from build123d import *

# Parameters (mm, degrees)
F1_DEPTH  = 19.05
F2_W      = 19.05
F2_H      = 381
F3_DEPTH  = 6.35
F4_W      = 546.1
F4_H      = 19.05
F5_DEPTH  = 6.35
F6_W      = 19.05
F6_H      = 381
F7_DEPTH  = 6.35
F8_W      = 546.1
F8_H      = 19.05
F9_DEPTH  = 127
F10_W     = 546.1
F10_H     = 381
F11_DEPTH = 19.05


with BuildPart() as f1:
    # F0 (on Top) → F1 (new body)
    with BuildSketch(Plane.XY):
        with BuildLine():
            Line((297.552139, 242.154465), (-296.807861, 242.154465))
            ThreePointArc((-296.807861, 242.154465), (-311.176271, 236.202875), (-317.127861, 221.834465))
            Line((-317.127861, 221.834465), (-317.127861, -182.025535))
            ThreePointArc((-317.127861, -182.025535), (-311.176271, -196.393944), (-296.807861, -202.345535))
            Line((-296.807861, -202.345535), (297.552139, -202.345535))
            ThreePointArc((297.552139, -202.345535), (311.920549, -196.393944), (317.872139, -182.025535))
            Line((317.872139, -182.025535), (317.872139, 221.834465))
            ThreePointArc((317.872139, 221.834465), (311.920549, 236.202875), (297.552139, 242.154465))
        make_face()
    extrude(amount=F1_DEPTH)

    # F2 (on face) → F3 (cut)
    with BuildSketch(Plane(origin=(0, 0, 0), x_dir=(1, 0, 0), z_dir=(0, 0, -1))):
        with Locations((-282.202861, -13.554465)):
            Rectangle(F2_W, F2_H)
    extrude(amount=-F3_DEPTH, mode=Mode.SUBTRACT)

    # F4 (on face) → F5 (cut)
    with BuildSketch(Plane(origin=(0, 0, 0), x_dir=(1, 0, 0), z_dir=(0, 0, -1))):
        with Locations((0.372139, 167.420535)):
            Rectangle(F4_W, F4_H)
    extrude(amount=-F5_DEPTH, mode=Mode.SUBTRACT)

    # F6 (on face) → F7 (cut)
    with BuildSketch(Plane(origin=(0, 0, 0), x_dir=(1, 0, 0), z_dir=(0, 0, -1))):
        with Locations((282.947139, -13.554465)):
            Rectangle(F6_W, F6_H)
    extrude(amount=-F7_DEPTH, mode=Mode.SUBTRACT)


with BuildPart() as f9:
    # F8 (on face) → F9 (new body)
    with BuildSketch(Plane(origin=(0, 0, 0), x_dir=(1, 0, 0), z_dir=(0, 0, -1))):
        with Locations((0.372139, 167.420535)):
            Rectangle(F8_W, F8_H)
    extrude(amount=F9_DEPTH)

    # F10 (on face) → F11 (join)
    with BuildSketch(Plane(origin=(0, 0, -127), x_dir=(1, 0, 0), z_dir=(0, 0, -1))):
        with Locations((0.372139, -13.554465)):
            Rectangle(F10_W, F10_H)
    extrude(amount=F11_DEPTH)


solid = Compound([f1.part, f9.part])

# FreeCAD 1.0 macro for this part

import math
import FreeCAD as App
import Part
import Sketcher
from FreeCAD import Vector
Q = App.Units.Quantity

doc = App.newDocument("Part")
params = doc.addObject("Spreadsheet::Sheet", "Params")
for row, (alias, value) in enumerate([
    ("sketch1_radius", "0.8 in"),
    ("sketch1_width", "23.4 in"),
    ("sketch1_height", "15.9 in"),
    ("pad1_length", "0.75 in"),
    ("sketch2_height", "15 in"),
    ("sketch2_width", "0.75 in"),
    ("pocket1_length", "0.25 in"),
    ("sketch3_width", "21.5 in"),
    ("sketch3_height", "0.75 in"),
    ("pocket2_length", "0.25 in"),
    ("sketch4_height", "15 in"),
    ("sketch4_width", "0.75 in"),
    ("pocket3_length", "0.25 in"),
    ("sketch5_width", "21.5 in"),
    ("sketch5_height", "0.75 in"),
    ("pad2_length", "5 in"),
    ("sketch6_height", "15 in"),
    ("sketch6_width", "21.5 in"),
    ("pad3_length", "0.75 in"),
], start=1):
    params.set(f"A{row}", alias)
    params.set(f"B{row}", "=" + value)
    params.setAlias(f"B{row}", alias)

body = doc.addObject("PartDesign::Body", "Body")

# Sketch on XY plane
sketch1 = body.newObject("Sketcher::SketchObject", "Sketch")
sketch1.AttachmentSupport = (doc.getObject("XY_Plane"), [""])
sketch1.MapMode = "FlatFace"
sketch1.addGeometry([
    Part.LineSegment(Vector(298, 242, 0), Vector(-297, 242, 0)),  # 0
    Part.ArcOfCircle(Part.Circle(Vector(-297, 222, 0), Vector(0, 0, 1), 20), math.radians(90), math.radians(180)),  # 1
    Part.LineSegment(Vector(-317, 222, 0), Vector(-317, -182, 0)),  # 2
    Part.ArcOfCircle(Part.Circle(Vector(-297, -182, 0), Vector(0, 0, 1), 20), math.radians(-180), math.radians(-90)),  # 3
    Part.LineSegment(Vector(-297, -202, 0), Vector(298, -202, 0)),  # 4
    Part.ArcOfCircle(Part.Circle(Vector(298, -182, 0), Vector(0, 0, 1), 20), math.radians(-90), math.radians(0)),  # 5
    Part.LineSegment(Vector(318, -182, 0), Vector(318, 222, 0)),  # 6
    Part.ArcOfCircle(Part.Circle(Vector(298, 222, 0), Vector(0, 0, 1), 20), math.radians(0), math.radians(90)),  # 7
], False)
sketch1.addConstraint([
    Sketcher.Constraint("Tangent", 0, 2, 1, 1),
    Sketcher.Constraint("Tangent", 1, 2, 2, 1),
    Sketcher.Constraint("Tangent", 2, 2, 3, 1),
    Sketcher.Constraint("Tangent", 3, 2, 4, 1),
    Sketcher.Constraint("Tangent", 4, 2, 5, 1),
    Sketcher.Constraint("Tangent", 5, 2, 6, 1),
    Sketcher.Constraint("Tangent", 6, 2, 7, 1),
    Sketcher.Constraint("Tangent", 7, 2, 0, 1),
    Sketcher.Constraint("Horizontal", 0),
    Sketcher.Constraint("Vertical", 2),
    Sketcher.Constraint("Horizontal", 4),
    Sketcher.Constraint("Vertical", 6),
    Sketcher.Constraint("Equal", 1, 3),
    Sketcher.Constraint("Equal", 3, 5),
    Sketcher.Constraint("Equal", 5, 7),
    Sketcher.Constraint("Radius", 1, Q("0.8 in")),
    Sketcher.Constraint("DistanceX", 0, 2, 0, 1, Q("23.4 in")),
    Sketcher.Constraint("DistanceY", 2, 2, 2, 1, Q("15.9 in")),
    Sketcher.Constraint("DistanceX", 1, 3, -1, 1, 296.807862),
    Sketcher.Constraint("DistanceY", -1, 1, 1, 3, 221.834466),
])
sketch1.setExpression("Constraints[15]", "Params.sketch1_radius")
sketch1.setExpression("Constraints[16]", "Params.sketch1_width")
sketch1.setExpression("Constraints[17]", "Params.sketch1_height")
pad1 = body.newObject("PartDesign::Pad", "Pad")
pad1.Profile = sketch1
pad1.setExpression("Length", "Params.pad1_length")

# Sketch on XY plane
sketch2 = body.newObject("Sketcher::SketchObject", "Sketch001")
sketch2.AttachmentSupport = (doc.getObject("XY_Plane"), [""])
sketch2.MapMode = "FlatFace"
sketch2.addGeometry([
    Part.LineSegment(Vector(-292, -177, 0), Vector(-292, 204, 0)),
    Part.LineSegment(Vector(-292, 204, 0), Vector(-273, 204, 0)),
    Part.LineSegment(Vector(-273, 204, 0), Vector(-273, -177, 0)),
    Part.LineSegment(Vector(-273, -177, 0), Vector(-292, -177, 0)),
], False)
sketch2.addConstraint([
    Sketcher.Constraint("Coincident", 0, 2, 1, 1),
    Sketcher.Constraint("Coincident", 1, 2, 2, 1),
    Sketcher.Constraint("Coincident", 2, 2, 3, 1),
    Sketcher.Constraint("Coincident", 3, 2, 0, 1),
    Sketcher.Constraint("Vertical", 0),
    Sketcher.Constraint("Horizontal", 1),
    Sketcher.Constraint("Vertical", 2),
    Sketcher.Constraint("Horizontal", 3),
    Sketcher.Constraint("DistanceY", 0, 1, 0, 2, Q("15 in")),
    Sketcher.Constraint("DistanceX", 1, 1, 1, 2, Q("0.75 in")),
    Sketcher.Constraint("DistanceX", 0, 2, -1, 1, 291.727861),
    Sketcher.Constraint("DistanceY", -1, 1, 0, 2, 204.054465),
])
sketch2.setExpression("Constraints[8]", "Params.sketch2_height")
sketch2.setExpression("Constraints[9]", "Params.sketch2_width")
pocket1 = body.newObject("PartDesign::Pocket", "Pocket")
pocket1.Profile = sketch2
pocket1.setExpression("Length", "Params.pocket1_length")
pocket1.Reversed = True

# Sketch on XY plane
sketch3 = body.newObject("Sketcher::SketchObject", "Sketch002")
sketch3.AttachmentSupport = (doc.getObject("XY_Plane"), [""])
sketch3.MapMode = "FlatFace"
sketch3.addGeometry([
    Part.LineSegment(Vector(-273, -177, 0), Vector(-273, -158, 0)),
    Part.LineSegment(Vector(-273, -158, 0), Vector(273, -158, 0)),
    Part.LineSegment(Vector(273, -158, 0), Vector(273, -177, 0)),
    Part.LineSegment(Vector(273, -177, 0), Vector(-273, -177, 0)),
], False)
sketch3.addConstraint([
    Sketcher.Constraint("Coincident", 0, 2, 1, 1),
    Sketcher.Constraint("Coincident", 1, 2, 2, 1),
    Sketcher.Constraint("Coincident", 2, 2, 3, 1),
    Sketcher.Constraint("Coincident", 3, 2, 0, 1),
    Sketcher.Constraint("Vertical", 0),
    Sketcher.Constraint("Horizontal", 1),
    Sketcher.Constraint("Vertical", 2),
    Sketcher.Constraint("Horizontal", 3),
    Sketcher.Constraint("DistanceX", 1, 1, 1, 2, Q("21.5 in")),
    Sketcher.Constraint("DistanceY", 0, 1, 0, 2, Q("0.75 in")),
    Sketcher.Constraint("DistanceX", 0, 2, -1, 1, 272.677861),
    Sketcher.Constraint("DistanceY", 0, 2, -1, 1, 157.895535),
])
sketch3.setExpression("Constraints[8]", "Params.sketch3_width")
sketch3.setExpression("Constraints[9]", "Params.sketch3_height")
pocket2 = body.newObject("PartDesign::Pocket", "Pocket001")
pocket2.Profile = sketch3
pocket2.setExpression("Length", "Params.pocket2_length")
pocket2.Reversed = True

# Sketch on XY plane
sketch4 = body.newObject("Sketcher::SketchObject", "Sketch003")
sketch4.AttachmentSupport = (doc.getObject("XY_Plane"), [""])
sketch4.MapMode = "FlatFace"
sketch4.addGeometry([
    Part.LineSegment(Vector(273, -177, 0), Vector(273, 204, 0)),
    Part.LineSegment(Vector(273, 204, 0), Vector(292, 204, 0)),
    Part.LineSegment(Vector(292, 204, 0), Vector(292, -177, 0)),
    Part.LineSegment(Vector(292, -177, 0), Vector(273, -177, 0)),
], False)
sketch4.addConstraint([
    Sketcher.Constraint("Coincident", 0, 2, 1, 1),
    Sketcher.Constraint("Coincident", 1, 2, 2, 1),
    Sketcher.Constraint("Coincident", 2, 2, 3, 1),
    Sketcher.Constraint("Coincident", 3, 2, 0, 1),
    Sketcher.Constraint("Vertical", 0),
    Sketcher.Constraint("Horizontal", 1),
    Sketcher.Constraint("Vertical", 2),
    Sketcher.Constraint("Horizontal", 3),
    Sketcher.Constraint("DistanceY", 0, 1, 0, 2, Q("15 in")),
    Sketcher.Constraint("DistanceX", 1, 1, 1, 2, Q("0.75 in")),
    Sketcher.Constraint("DistanceX", -1, 1, 0, 2, 273.422139),
    Sketcher.Constraint("DistanceY", -1, 1, 0, 2, 204.054465),
])
sketch4.setExpression("Constraints[8]", "Params.sketch4_height")
sketch4.setExpression("Constraints[9]", "Params.sketch4_width")
pocket3 = body.newObject("PartDesign::Pocket", "Pocket002")
pocket3.Profile = sketch4
pocket3.setExpression("Length", "Params.pocket3_length")
pocket3.Reversed = True
body2 = doc.addObject("PartDesign::Body", "Body001")

# Sketch on XY plane
sketch5 = body2.newObject("Sketcher::SketchObject", "Sketch004")
sketch5.AttachmentSupport = (doc.getObject("XY_Plane001"), [""])
sketch5.MapMode = "FlatFace"
sketch5.addGeometry([
    Part.LineSegment(Vector(-273, -177, 0), Vector(-273, -158, 0)),
    Part.LineSegment(Vector(-273, -158, 0), Vector(273, -158, 0)),
    Part.LineSegment(Vector(273, -158, 0), Vector(273, -177, 0)),
    Part.LineSegment(Vector(273, -177, 0), Vector(-273, -177, 0)),
], False)
sketch5.addConstraint([
    Sketcher.Constraint("Coincident", 0, 2, 1, 1),
    Sketcher.Constraint("Coincident", 1, 2, 2, 1),
    Sketcher.Constraint("Coincident", 2, 2, 3, 1),
    Sketcher.Constraint("Coincident", 3, 2, 0, 1),
    Sketcher.Constraint("Vertical", 0),
    Sketcher.Constraint("Horizontal", 1),
    Sketcher.Constraint("Vertical", 2),
    Sketcher.Constraint("Horizontal", 3),
    Sketcher.Constraint("DistanceX", 1, 1, 1, 2, Q("21.5 in")),
    Sketcher.Constraint("DistanceY", 0, 1, 0, 2, Q("0.75 in")),
    Sketcher.Constraint("DistanceX", 0, 2, -1, 1, 272.677861),
    Sketcher.Constraint("DistanceY", 0, 2, -1, 1, 157.895535),
])
sketch5.setExpression("Constraints[8]", "Params.sketch5_width")
sketch5.setExpression("Constraints[9]", "Params.sketch5_height")
pad2 = body2.newObject("PartDesign::Pad", "Pad001")
pad2.Profile = sketch5
pad2.setExpression("Length", "Params.pad2_length")
pad2.Reversed = True

# Sketch on XY plane
sketch6 = body2.newObject("Sketcher::SketchObject", "Sketch005")
sketch6.AttachmentSupport = (doc.getObject("XY_Plane001"), [""])
sketch6.MapMode = "FlatFace"
sketch6.AttachmentOffset = App.Placement(Vector(0, 0, -5 * 25.4), App.Rotation())
sketch6.addGeometry([
    Part.LineSegment(Vector(-273, -177, 0), Vector(-273, 204, 0)),
    Part.LineSegment(Vector(-273, 204, 0), Vector(273, 204, 0)),
    Part.LineSegment(Vector(273, 204, 0), Vector(273, -177, 0)),
    Part.LineSegment(Vector(273, -177, 0), Vector(-273, -177, 0)),
], False)
sketch6.addConstraint([
    Sketcher.Constraint("Coincident", 0, 2, 1, 1),
    Sketcher.Constraint("Coincident", 1, 2, 2, 1),
    Sketcher.Constraint("Coincident", 2, 2, 3, 1),
    Sketcher.Constraint("Coincident", 3, 2, 0, 1),
    Sketcher.Constraint("Vertical", 0),
    Sketcher.Constraint("Horizontal", 1),
    Sketcher.Constraint("Vertical", 2),
    Sketcher.Constraint("Horizontal", 3),
    Sketcher.Constraint("DistanceY", 0, 1, 0, 2, Q("15 in")),
    Sketcher.Constraint("DistanceX", 1, 1, 1, 2, Q("21.5 in")),
    Sketcher.Constraint("DistanceX", 0, 2, -1, 1, 272.677861),
    Sketcher.Constraint("DistanceY", -1, 1, 0, 2, 204.054465),
])
sketch6.setExpression("Constraints[8]", "Params.sketch6_height")
sketch6.setExpression("Constraints[9]", "Params.sketch6_width")
pad3 = body2.newObject("PartDesign::Pad", "Pad002")
pad3.Profile = sketch6
pad3.setExpression("Length", "Params.pad3_length")
pad3.Reversed = True

doc.recompute()
